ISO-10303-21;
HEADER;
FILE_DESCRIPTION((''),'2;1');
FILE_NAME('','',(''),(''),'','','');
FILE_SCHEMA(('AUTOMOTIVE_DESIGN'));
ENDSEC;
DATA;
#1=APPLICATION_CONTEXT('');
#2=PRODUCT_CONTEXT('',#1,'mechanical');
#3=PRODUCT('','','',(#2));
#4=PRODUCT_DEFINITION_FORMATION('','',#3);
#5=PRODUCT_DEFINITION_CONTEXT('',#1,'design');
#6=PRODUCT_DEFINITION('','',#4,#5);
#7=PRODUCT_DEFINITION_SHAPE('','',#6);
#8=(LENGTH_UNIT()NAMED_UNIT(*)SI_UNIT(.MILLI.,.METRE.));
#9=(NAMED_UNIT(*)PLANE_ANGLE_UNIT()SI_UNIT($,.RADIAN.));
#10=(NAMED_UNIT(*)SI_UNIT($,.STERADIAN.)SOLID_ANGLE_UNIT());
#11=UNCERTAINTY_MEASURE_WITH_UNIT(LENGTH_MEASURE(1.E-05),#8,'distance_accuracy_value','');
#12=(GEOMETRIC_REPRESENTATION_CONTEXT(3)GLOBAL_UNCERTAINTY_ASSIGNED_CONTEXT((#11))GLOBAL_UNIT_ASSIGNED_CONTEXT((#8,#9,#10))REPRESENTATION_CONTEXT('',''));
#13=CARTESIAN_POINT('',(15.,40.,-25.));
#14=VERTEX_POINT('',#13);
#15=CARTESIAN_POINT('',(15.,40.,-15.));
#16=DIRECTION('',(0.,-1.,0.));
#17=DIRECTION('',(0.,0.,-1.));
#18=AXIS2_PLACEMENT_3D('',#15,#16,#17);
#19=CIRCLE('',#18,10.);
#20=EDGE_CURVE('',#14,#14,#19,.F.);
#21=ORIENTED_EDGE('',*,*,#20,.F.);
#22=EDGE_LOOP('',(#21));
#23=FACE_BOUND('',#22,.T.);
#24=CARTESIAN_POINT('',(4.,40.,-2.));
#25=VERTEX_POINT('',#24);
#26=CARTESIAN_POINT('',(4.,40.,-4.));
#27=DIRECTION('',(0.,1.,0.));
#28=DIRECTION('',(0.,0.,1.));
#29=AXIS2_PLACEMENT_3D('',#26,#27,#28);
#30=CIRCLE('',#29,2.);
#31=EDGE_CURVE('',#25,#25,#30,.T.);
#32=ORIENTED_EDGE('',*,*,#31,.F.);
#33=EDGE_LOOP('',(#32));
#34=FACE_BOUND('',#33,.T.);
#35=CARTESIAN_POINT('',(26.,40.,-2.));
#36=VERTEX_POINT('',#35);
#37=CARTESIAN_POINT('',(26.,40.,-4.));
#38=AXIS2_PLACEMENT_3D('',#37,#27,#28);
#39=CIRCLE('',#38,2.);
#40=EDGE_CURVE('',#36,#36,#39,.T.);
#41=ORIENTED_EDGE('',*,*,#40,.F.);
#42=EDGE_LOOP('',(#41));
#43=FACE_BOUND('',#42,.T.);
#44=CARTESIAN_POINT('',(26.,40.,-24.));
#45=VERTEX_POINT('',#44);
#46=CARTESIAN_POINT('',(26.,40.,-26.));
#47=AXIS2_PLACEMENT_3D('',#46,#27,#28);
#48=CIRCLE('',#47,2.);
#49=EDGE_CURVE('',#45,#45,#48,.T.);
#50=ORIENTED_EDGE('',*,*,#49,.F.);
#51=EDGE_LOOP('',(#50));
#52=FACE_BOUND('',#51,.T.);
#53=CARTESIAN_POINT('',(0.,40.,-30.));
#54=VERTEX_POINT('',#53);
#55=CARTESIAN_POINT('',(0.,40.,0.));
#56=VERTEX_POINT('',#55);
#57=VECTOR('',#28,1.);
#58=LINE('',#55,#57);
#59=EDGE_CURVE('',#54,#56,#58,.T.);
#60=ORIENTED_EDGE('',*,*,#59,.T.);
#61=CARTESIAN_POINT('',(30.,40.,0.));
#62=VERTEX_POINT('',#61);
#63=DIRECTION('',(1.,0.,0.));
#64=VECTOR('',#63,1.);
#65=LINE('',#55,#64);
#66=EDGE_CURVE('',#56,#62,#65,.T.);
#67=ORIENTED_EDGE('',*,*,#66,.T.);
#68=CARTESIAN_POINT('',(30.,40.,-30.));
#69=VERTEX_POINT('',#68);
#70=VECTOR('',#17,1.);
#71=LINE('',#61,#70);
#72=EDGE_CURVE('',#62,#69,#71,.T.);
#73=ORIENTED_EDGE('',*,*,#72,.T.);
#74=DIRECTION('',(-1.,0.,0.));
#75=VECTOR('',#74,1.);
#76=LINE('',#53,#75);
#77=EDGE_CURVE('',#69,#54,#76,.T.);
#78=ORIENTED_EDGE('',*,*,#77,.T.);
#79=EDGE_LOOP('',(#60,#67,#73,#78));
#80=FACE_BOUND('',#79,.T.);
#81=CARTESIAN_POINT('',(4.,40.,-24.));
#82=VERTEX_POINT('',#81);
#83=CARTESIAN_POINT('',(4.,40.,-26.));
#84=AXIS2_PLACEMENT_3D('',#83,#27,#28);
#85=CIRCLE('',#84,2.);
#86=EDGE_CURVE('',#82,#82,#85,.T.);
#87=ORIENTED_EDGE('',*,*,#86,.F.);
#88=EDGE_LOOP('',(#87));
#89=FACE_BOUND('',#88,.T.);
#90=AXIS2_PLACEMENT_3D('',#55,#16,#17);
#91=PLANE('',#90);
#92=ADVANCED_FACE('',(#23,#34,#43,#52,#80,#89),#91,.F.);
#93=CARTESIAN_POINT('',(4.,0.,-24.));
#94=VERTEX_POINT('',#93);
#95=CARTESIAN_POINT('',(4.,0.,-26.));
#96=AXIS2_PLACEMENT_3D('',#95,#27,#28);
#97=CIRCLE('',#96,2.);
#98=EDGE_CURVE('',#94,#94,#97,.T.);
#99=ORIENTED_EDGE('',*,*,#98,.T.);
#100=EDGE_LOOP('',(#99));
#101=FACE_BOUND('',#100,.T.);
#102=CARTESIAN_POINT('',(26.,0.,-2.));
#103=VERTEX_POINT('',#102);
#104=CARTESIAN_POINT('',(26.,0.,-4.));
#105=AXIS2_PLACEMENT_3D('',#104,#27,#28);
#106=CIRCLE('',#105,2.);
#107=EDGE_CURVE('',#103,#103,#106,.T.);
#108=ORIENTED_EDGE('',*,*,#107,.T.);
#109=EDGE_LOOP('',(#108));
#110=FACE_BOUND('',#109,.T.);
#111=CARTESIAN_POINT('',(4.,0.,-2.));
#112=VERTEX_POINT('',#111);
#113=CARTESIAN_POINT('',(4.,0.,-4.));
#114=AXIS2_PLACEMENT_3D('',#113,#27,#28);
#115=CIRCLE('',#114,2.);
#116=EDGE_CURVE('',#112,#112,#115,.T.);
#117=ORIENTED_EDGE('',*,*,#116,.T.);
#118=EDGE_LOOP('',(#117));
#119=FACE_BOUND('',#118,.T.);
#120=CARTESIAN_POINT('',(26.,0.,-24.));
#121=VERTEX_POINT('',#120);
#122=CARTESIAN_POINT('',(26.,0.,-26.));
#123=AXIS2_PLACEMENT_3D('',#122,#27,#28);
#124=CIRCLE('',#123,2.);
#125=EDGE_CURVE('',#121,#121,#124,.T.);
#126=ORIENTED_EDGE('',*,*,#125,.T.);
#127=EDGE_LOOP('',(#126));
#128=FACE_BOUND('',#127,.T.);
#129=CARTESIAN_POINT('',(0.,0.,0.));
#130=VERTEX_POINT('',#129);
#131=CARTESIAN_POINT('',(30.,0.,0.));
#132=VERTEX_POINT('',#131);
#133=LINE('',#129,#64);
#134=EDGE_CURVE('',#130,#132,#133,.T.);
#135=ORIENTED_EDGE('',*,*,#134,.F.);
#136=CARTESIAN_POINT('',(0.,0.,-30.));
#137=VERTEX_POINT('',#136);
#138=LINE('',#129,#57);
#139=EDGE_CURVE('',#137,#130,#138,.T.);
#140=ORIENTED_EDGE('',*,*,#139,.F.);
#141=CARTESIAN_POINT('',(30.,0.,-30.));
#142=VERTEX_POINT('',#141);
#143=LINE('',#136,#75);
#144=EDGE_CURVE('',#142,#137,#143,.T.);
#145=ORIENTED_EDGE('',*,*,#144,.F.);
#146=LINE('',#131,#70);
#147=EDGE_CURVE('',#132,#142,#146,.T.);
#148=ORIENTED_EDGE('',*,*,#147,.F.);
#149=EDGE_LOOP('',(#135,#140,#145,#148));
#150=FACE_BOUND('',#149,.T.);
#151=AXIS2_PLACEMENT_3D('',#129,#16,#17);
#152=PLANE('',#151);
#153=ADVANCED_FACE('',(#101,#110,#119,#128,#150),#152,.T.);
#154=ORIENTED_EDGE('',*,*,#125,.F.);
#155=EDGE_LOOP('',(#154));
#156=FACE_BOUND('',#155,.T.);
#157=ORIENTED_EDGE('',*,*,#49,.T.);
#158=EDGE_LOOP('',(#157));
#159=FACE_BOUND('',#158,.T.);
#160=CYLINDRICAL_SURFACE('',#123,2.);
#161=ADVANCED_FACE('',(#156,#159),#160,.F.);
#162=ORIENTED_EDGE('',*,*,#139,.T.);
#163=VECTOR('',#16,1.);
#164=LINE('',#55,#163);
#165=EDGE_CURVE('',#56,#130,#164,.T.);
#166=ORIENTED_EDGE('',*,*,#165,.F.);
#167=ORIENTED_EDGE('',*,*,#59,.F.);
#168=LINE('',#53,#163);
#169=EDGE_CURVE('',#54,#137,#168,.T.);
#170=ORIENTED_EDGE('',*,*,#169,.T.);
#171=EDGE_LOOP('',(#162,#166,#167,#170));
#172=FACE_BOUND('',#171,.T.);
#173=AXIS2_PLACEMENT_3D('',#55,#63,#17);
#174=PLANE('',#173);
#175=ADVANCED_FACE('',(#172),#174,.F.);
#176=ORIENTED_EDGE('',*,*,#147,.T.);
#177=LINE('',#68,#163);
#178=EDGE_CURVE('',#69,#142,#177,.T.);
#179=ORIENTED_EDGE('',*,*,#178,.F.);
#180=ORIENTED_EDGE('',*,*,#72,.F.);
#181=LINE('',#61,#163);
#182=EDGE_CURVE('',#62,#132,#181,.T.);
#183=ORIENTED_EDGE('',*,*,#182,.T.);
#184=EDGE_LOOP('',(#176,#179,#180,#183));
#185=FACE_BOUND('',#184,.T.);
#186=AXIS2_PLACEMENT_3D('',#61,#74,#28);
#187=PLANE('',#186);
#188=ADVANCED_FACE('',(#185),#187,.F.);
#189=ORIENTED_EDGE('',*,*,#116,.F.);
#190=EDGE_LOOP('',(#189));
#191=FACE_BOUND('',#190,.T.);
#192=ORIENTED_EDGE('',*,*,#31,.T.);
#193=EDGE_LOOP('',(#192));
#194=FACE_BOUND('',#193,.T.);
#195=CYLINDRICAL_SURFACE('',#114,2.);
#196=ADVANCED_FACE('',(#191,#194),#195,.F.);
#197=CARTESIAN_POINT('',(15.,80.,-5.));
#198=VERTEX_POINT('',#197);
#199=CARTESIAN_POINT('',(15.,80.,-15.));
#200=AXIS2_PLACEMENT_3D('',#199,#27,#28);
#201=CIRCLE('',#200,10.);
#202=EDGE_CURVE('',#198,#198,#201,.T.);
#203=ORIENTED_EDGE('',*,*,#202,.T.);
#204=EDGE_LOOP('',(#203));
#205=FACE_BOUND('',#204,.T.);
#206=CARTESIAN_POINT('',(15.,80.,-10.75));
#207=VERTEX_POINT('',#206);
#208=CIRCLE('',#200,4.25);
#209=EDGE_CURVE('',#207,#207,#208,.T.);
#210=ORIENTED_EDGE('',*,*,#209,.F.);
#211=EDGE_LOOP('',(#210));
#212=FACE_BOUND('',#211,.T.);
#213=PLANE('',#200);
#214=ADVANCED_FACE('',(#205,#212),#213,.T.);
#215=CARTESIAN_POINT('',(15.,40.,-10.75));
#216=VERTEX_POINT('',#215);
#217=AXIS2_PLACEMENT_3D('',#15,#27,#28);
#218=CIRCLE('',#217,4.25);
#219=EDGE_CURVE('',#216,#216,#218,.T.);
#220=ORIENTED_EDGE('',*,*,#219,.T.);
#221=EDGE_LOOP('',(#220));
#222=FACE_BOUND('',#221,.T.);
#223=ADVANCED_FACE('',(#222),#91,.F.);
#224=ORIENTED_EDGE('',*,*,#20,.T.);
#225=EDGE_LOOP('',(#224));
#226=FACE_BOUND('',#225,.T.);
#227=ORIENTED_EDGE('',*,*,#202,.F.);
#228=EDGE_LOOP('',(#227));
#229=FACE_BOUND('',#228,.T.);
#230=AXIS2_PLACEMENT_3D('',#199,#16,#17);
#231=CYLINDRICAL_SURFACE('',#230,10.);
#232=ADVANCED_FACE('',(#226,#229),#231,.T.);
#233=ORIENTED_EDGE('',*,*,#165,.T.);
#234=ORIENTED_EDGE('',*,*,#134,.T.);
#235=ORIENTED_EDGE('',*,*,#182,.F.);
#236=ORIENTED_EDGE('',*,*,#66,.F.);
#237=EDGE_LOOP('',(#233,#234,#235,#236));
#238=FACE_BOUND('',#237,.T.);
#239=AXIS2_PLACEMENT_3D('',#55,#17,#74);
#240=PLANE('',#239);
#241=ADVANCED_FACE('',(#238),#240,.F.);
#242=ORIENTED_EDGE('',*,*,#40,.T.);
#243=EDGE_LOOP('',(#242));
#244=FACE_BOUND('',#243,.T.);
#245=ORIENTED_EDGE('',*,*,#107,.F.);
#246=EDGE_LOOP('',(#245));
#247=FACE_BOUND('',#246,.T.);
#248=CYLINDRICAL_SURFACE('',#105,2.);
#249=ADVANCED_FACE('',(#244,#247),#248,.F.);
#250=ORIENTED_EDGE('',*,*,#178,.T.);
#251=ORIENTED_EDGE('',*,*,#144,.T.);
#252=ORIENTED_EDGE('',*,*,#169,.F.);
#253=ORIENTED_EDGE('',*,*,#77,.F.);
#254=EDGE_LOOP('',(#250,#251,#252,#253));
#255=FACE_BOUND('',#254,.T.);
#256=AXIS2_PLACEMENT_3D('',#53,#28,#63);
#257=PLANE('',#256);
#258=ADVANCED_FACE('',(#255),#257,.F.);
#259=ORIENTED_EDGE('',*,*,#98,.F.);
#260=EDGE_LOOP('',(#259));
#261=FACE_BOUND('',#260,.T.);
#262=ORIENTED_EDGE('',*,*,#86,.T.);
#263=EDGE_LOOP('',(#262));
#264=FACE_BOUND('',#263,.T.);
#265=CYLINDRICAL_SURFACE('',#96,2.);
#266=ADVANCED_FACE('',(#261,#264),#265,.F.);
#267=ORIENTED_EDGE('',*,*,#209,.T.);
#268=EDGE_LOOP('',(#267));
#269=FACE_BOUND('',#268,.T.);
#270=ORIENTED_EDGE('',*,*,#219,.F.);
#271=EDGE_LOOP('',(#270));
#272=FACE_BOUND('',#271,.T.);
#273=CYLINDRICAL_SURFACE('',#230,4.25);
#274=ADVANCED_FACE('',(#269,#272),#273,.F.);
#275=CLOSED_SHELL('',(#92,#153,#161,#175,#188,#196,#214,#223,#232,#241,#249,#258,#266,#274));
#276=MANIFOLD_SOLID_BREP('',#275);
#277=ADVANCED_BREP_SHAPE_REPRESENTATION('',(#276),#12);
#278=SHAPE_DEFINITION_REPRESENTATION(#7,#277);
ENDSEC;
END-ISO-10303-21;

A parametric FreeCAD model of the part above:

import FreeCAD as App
import Part
import Sketcher

V = App.Vector
Q = App.Units.Quantity


def add_polygon(sketch, points):
    """Adds a closed chain of lines whose ends are joined by coincident constraints."""
    first, n = sketch.GeometryCount, len(points)
    for a, b in zip(points, points[1:] + points[:1]):
        sketch.addGeometry(Part.LineSegment(App.Vector(*a, 0), App.Vector(*b, 0)), False)
    for i in range(n):
        sketch.addConstraint(Sketcher.Constraint("Coincident", first + i, 2, first + (i + 1) % n, 1))

doc = App.newDocument("Part")
body = doc.addObject("PartDesign::Body", "Body")

# Sketch on XZ plane
sketch1 = body.newObject("Sketcher::SketchObject", "Sketch")
sketch1.AttachmentSupport = (doc.getObject("XZ_Plane"), [""])
sketch1.MapMode = "FlatFace"
add_polygon(sketch1, [(0, -30), (0, 0), (30, 0), (30, -30)])  # lines 0-3
sketch1.addConstraint(Sketcher.Constraint("Vertical", 0))
sketch1.addConstraint(Sketcher.Constraint("Horizontal", 1))
sketch1.addConstraint(Sketcher.Constraint("Vertical", 2))
sketch1.addConstraint(Sketcher.Constraint("Horizontal", 3))
sketch1.addConstraint(Sketcher.Constraint("Coincident", 0, 2, -1, 1))
sketch1.addConstraint(Sketcher.Constraint("Equal", 3, 0))
sketch1.addConstraint(Sketcher.Constraint("DistanceX", 1, 1, 1, 2, Q("30 mm")))
pad1 = body.newObject("PartDesign::Pad", "Pad")
pad1.Profile = sketch1
pad1.Length = 40
pad1.Reversed = True

# Sketch on XZ plane
sketch2 = body.newObject("Sketcher::SketchObject", "Sketch001")
sketch2.AttachmentSupport = (doc.getObject("XZ_Plane"), [""])
sketch2.MapMode = "FlatFace"
sketch2.AttachmentOffset = App.Placement(V(0, 0, -40), App.Rotation())
sketch2.addGeometry(Part.Circle(V(4, -26, 0), V(0, 0, 1), 2), False)
sketch2.addGeometry(Part.Circle(V(26, -26, 0), V(0, 0, 1), 2), False)
sketch2.addGeometry(Part.Circle(V(26, -4, 0), V(0, 0, 1), 2), False)
sketch2.addGeometry(Part.Circle(V(4, -4, 0), V(0, 0, 1), 2), False)
sketch2.addConstraint(Sketcher.Constraint("Equal", 0, 1))
sketch2.addConstraint(Sketcher.Constraint("Equal", 1, 2))
sketch2.addConstraint(Sketcher.Constraint("Equal", 2, 3))
sketch2.addConstraint(Sketcher.Constraint("Horizontal", 0, 3, 1, 3))
sketch2.addConstraint(Sketcher.Constraint("Horizontal", 2, 3, 3, 3))
sketch2.addConstraint(Sketcher.Constraint("Vertical", 1, 3, 2, 3))
sketch2.addConstraint(Sketcher.Constraint("Vertical", 0, 3, 3, 3))
sketch2.addConstraint(Sketcher.Constraint("Diameter", 0, Q("4 mm")))
sketch2.addConstraint(Sketcher.Constraint("DistanceX", -1, 1, 0, 3, Q("4 mm")))
sketch2.addConstraint(Sketcher.Constraint("DistanceY", 0, 3, -1, 1, Q("26 mm")))
sketch2.addConstraint(Sketcher.Constraint("DistanceX", -1, 1, 1, 3, Q("26 mm")))
sketch2.addConstraint(Sketcher.Constraint("DistanceY", 2, 3, -1, 1, Q("4 mm")))
pocket1 = body.newObject("PartDesign::Pocket", "Pocket")
pocket1.Profile = sketch2
pocket1.Length = 40
pocket1.Reversed = True

# Sketch on XZ plane
sketch3 = body.newObject("Sketcher::SketchObject", "Sketch002")
sketch3.AttachmentSupport = (doc.getObject("XZ_Plane"), [""])
sketch3.MapMode = "FlatFace"
sketch3.AttachmentOffset = App.Placement(V(0, 0, -40), App.Rotation())
sketch3.addGeometry(Part.Circle(V(15, -15, 0), V(0, 0, 1), 10), False)
sketch3.addGeometry(Part.Circle(V(15, -15, 0), V(0, 0, 1), 4.25), False)
sketch3.addConstraint(Sketcher.Constraint("Coincident", 1, 3, 0, 3))
sketch3.addConstraint(Sketcher.Constraint("Diameter", 0, Q("20 mm")))
sketch3.addConstraint(Sketcher.Constraint("Diameter", 1, Q("8.5 mm")))
sketch3.addConstraint(Sketcher.Constraint("DistanceX", -1, 1, 0, 3, Q("15 mm")))
sketch3.addConstraint(Sketcher.Constraint("DistanceY", 0, 3, -1, 1, Q("15 mm")))
pad2 = body.newObject("PartDesign::Pad", "Pad001")
pad2.Profile = sketch3
pad2.Length = 40
pad2.Reversed = True

doc.recompute()
